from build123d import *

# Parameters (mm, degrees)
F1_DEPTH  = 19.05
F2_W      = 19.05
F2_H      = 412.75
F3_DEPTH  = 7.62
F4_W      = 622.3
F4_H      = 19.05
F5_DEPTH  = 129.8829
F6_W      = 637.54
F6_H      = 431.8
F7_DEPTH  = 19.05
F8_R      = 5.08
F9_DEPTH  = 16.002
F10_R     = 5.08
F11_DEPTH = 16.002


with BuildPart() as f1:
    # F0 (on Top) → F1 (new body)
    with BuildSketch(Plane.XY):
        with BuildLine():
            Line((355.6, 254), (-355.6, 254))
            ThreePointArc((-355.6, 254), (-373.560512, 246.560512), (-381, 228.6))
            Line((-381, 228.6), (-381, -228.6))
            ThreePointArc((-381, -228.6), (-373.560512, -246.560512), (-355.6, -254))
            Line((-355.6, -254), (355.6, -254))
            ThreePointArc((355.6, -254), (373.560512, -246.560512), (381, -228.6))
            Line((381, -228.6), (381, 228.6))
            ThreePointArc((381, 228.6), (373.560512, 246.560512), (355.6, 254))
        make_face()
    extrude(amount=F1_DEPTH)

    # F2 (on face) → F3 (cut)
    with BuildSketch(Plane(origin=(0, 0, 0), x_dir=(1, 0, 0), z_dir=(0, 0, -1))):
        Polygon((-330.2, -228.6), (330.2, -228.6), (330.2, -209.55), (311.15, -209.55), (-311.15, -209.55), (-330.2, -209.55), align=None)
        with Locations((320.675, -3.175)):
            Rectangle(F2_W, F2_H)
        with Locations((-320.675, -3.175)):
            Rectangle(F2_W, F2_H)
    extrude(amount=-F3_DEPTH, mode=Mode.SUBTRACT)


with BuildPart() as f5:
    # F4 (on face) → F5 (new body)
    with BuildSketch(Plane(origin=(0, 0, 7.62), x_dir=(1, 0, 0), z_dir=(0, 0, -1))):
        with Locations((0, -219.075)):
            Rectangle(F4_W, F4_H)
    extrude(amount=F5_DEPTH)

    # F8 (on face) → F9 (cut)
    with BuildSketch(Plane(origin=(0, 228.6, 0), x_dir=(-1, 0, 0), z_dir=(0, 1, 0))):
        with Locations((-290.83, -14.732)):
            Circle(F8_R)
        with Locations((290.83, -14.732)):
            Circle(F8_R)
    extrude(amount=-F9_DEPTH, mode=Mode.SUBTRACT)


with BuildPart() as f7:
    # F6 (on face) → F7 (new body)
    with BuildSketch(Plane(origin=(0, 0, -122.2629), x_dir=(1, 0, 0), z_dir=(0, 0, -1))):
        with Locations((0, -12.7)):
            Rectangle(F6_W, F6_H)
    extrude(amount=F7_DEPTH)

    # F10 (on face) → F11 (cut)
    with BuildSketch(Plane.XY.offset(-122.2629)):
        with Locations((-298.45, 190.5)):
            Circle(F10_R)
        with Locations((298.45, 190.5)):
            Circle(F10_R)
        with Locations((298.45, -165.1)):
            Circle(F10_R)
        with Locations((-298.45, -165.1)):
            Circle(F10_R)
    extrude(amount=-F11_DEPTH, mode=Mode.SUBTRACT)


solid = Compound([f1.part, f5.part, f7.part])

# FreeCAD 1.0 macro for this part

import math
import FreeCAD as App
import Part
import Sketcher

V = App.Vector
Q = App.Units.Quantity


def add_polygon(sketch, points):
    """Adds a closed chain of lines whose ends are joined by coincident constraints."""
    first, n = sketch.GeometryCount, len(points)
    for a, b in zip(points, points[1:] + points[:1]):
        sketch.addGeometry(Part.LineSegment(App.Vector(*a, 0), App.Vector(*b, 0)), False)
    for i in range(n):
        sketch.addConstraint(Sketcher.Constraint("Coincident", first + i, 2, first + (i + 1) % n, 1))

doc = App.newDocument("Part")
body = doc.addObject("PartDesign::Body", "Body")

# Sketch on XY plane
sketch1 = body.newObject("Sketcher::SketchObject", "Sketch")
sketch1.AttachmentSupport = (doc.getObject("XY_Plane"), [""])
sketch1.MapMode = "FlatFace"
sketch1.addGeometry([
    Part.LineSegment(V(355.6, 254, 0), V(-355.6, 254, 0)),  # 0
    Part.ArcOfCircle(Part.Circle(V(-355.599999, 228.599999, 0), V(0, 0, 1), 25.400001), math.radians(90.000002), math.radians(179.999998)),  # 1
    Part.LineSegment(V(-381, 228.6, 0), V(-381, -228.6, 0)),  # 2
    Part.ArcOfCircle(Part.Circle(V(-355.599999, -228.599999, 0), V(0, 0, 1), 25.400001), math.radians(-179.999998), math.radians(-90.000002)),  # 3
    Part.LineSegment(V(-355.6, -254, 0), V(355.6, -254, 0)),  # 4
    Part.ArcOfCircle(Part.Circle(V(355.599999, -228.599999, 0), V(0, 0, 1), 25.400001), math.radians(-89.999998), math.radians(-0.000002)),  # 5
    Part.LineSegment(V(381, -228.6, 0), V(381, 228.6, 0)),  # 6
    Part.ArcOfCircle(Part.Circle(V(355.599999, 228.599999, 0), V(0, 0, 1), 25.400001), math.radians(0.000002), math.radians(89.999998)),  # 7
], False)
sketch1.addConstraint([
    Sketcher.Constraint("Tangent", 0, 2, 1, 1),
    Sketcher.Constraint("Tangent", 1, 2, 2, 1),
    Sketcher.Constraint("Tangent", 2, 2, 3, 1),
    Sketcher.Constraint("Tangent", 3, 2, 4, 1),
    Sketcher.Constraint("Tangent", 4, 2, 5, 1),
    Sketcher.Constraint("Tangent", 5, 2, 6, 1),
    Sketcher.Constraint("Tangent", 6, 2, 7, 1),
    Sketcher.Constraint("Tangent", 7, 2, 0, 1),
    Sketcher.Constraint("Horizontal", 0),
    Sketcher.Constraint("Vertical", 2),
    Sketcher.Constraint("Horizontal", 4),
    Sketcher.Constraint("Vertical", 6),
    Sketcher.Constraint("Equal", 1, 3),
    Sketcher.Constraint("Equal", 3, 5),
    Sketcher.Constraint("Equal", 5, 7),
    Sketcher.Constraint("Symmetric", 1, 3, 5, 3, -1, 1),
    Sketcher.Constraint("Radius", 1, Q("1 in")),
    Sketcher.Constraint("DistanceX", 0, 2, 0, 1, Q("28 in")),
    Sketcher.Constraint("DistanceY", 2, 2, 2, 1, Q("18 in")),
])
pad1 = body.newObject("PartDesign::Pad", "Pad")
pad1.Profile = sketch1
pad1.Length = Q("0.75 in")

# Sketch on XY plane
sketch2 = body.newObject("Sketcher::SketchObject", "Sketch001")
sketch2.AttachmentSupport = (doc.getObject("XY_Plane"), [""])
sketch2.MapMode = "FlatFace"
add_polygon(sketch2, [(-330.2, 228.6), (330.2, 228.6), (330.2, -203.2), (311.15, -203.2), (311.15, 209.55), (-311.15, 209.55), (-311.15, -203.2), (-330.2, -203.2)])  # lines 0-7
sketch2.addConstraint([
    Sketcher.Constraint("Horizontal", 0),
    Sketcher.Constraint("Vertical", 1),
    Sketcher.Constraint("Horizontal", 2),
    Sketcher.Constraint("Vertical", 3),
    Sketcher.Constraint("Horizontal", 4),
    Sketcher.Constraint("Vertical", 5),
    Sketcher.Constraint("Horizontal", 6),
    Sketcher.Constraint("Vertical", 7),
    Sketcher.Constraint("Symmetric", 2, 2, 5, 2, -2),
    Sketcher.Constraint("Equal", 2, 6),
    Sketcher.Constraint("DistanceX", 0, 1, 0, 2, Q("26 in")),
    Sketcher.Constraint("DistanceY", 1, 2, 1, 1, Q("17 in")),
    Sketcher.Constraint("DistanceX", 4, 2, 4, 1, Q("24.5 in")),
    Sketcher.Constraint("DistanceY", -1, 1, 0, 2, Q("9 in")),
    Sketcher.Constraint("DistanceY", 3, 1, 3, 2, Q("16.25 in")),
])
pocket1 = body.newObject("PartDesign::Pocket", "Pocket")
pocket1.Profile = sketch2
pocket1.Length = Q("0.3 in")
pocket1.Reversed = True
body2 = doc.addObject("PartDesign::Body", "Body001")

# Sketch on XY plane
sketch3 = body2.newObject("Sketcher::SketchObject", "Sketch002")
sketch3.AttachmentSupport = (doc.getObject("XY_Plane001"), [""])
sketch3.MapMode = "FlatFace"
sketch3.AttachmentOffset = App.Placement(V(0, 0, 0.3 * 25.4), App.Rotation())
add_polygon(sketch3, [(-311.15, 209.55), (-311.15, 228.6), (311.15, 228.6), (311.15, 209.55)])  # lines 0-3
sketch3.addConstraint([
    Sketcher.Constraint("Vertical", 0),
    Sketcher.Constraint("Horizontal", 1),
    Sketcher.Constraint("Vertical", 2),
    Sketcher.Constraint("Horizontal", 3),
    Sketcher.Constraint("DistanceX", 1, 1, 1, 2, Q("24.5 in")),
    Sketcher.Constraint("DistanceY", -1, 1, 0, 2, Q("9 in")),
    Sketcher.Constraint("DistanceY", 0, 1, 0, 2, Q("0.75 in")),
    Sketcher.Constraint("DistanceX", 0, 2, -1, 1, Q("12.25 in")),
])
pad2 = body2.newObject("PartDesign::Pad", "Pad001")
pad2.Profile = sketch3
pad2.Length = Q("5.1135 in")
pad2.Reversed = True

# Sketch on XZ plane
sketch4 = body2.newObject("Sketcher::SketchObject", "Sketch003")
sketch4.AttachmentSupport = (doc.getObject("XZ_Plane001"), [""])
sketch4.MapMode = "FlatFace"
sketch4.AttachmentOffset = App.Placement(V(0, 0, -9 * 25.4), App.Rotation())
sketch4.addGeometry([
    Part.Circle(V(290.83, -14.732, 0), V(0, 0, 1), 5.08),
    Part.Circle(V(-290.83, -14.732, 0), V(0, 0, 1), 5.08),
], False)
sketch4.addConstraint([
    Sketcher.Constraint("Equal", 0, 1),
    Sketcher.Constraint("Symmetric", 0, 3, 1, 3, -2),
    Sketcher.Constraint("Diameter", 0, Q("0.4 in")),
    Sketcher.Constraint("DistanceX", 1, 3, 0, 3, Q("22.9 in")),
    Sketcher.Constraint("DistanceY", 0, 3, -1, 1, Q("0.58 in")),
])
pocket2 = body2.newObject("PartDesign::Pocket", "Pocket001")
pocket2.Profile = sketch4
pocket2.Length = Q("0.63 in")
pocket2.Reversed = True
body3 = doc.addObject("PartDesign::Body", "Body002")

# Sketch on XY plane
sketch5 = body3.newObject("Sketcher::SketchObject", "Sketch004")
sketch5.AttachmentSupport = (doc.getObject("XY_Plane002"), [""])
sketch5.MapMode = "FlatFace"
sketch5.AttachmentOffset = App.Placement(V(0, 0, -4.8135 * 25.4), App.Rotation())
add_polygon(sketch5, [(-318.77, -203.2), (-318.77, 228.6), (318.77, 228.6), (318.77, -203.2)])  # lines 0-3
sketch5.addConstraint([
    Sketcher.Constraint("Vertical", 0),
    Sketcher.Constraint("Horizontal", 1),
    Sketcher.Constraint("Vertical", 2),
    Sketcher.Constraint("Horizontal", 3),
    Sketcher.Constraint("DistanceY", 0, 1, 0, 2, Q("17 in")),
    Sketcher.Constraint("DistanceX", 1, 1, 1, 2, Q("25.1 in")),
    Sketcher.Constraint("DistanceY", -1, 1, 0, 2, Q("9 in")),
    Sketcher.Constraint("DistanceX", 0, 2, -1, 1, Q("12.55 in")),
])
pad3 = body3.newObject("PartDesign::Pad", "Pad002")
pad3.Profile = sketch5
pad3.Length = Q("0.75 in")
pad3.Reversed = True

# Sketch on XY plane
sketch6 = body3.newObject("Sketcher::SketchObject", "Sketch005")
sketch6.AttachmentSupport = (doc.getObject("XY_Plane002"), [""])
sketch6.MapMode = "FlatFace"
sketch6.AttachmentOffset = App.Placement(V(0, 0, -4.8135 * 25.4), App.Rotation())
sketch6.addGeometry([
    Part.Circle(V(-298.45, 190.5, 0), V(0, 0, 1), 5.08),
    Part.Circle(V(298.45, 190.5, 0), V(0, 0, 1), 5.08),
    Part.Circle(V(298.45, -165.1, 0), V(0, 0, 1), 5.08),
    Part.Circle(V(-298.45, -165.1, 0), V(0, 0, 1), 5.08),
], False)
sketch6.addConstraint([
    Sketcher.Constraint("Equal", 0, 1),
    Sketcher.Constraint("Equal", 1, 2),
    Sketcher.Constraint("Equal", 2, 3),
    Sketcher.Constraint("Symmetric", 0, 3, 1, 3, -2),
    Sketcher.Constraint("Symmetric", 2, 3, 3, 3, -2),
    Sketcher.Constraint("Vertical", 1, 3, 2, 3),
    Sketcher.Constraint("Diameter", 0, Q("0.4 in")),
    Sketcher.Constraint("DistanceY", 2, 3, 1, 3, Q("14 in")),
    Sketcher.Constraint("DistanceY", -1, 1, 0, 3, Q("7.5 in")),
    Sketcher.Constraint("DistanceX", 0, 3, 1, 3, Q("23.5 in")),
])
pocket3 = body3.newObject("PartDesign::Pocket", "Pocket002")
pocket3.Profile = sketch6
pocket3.Length = Q("0.63 in")

doc.recompute()
